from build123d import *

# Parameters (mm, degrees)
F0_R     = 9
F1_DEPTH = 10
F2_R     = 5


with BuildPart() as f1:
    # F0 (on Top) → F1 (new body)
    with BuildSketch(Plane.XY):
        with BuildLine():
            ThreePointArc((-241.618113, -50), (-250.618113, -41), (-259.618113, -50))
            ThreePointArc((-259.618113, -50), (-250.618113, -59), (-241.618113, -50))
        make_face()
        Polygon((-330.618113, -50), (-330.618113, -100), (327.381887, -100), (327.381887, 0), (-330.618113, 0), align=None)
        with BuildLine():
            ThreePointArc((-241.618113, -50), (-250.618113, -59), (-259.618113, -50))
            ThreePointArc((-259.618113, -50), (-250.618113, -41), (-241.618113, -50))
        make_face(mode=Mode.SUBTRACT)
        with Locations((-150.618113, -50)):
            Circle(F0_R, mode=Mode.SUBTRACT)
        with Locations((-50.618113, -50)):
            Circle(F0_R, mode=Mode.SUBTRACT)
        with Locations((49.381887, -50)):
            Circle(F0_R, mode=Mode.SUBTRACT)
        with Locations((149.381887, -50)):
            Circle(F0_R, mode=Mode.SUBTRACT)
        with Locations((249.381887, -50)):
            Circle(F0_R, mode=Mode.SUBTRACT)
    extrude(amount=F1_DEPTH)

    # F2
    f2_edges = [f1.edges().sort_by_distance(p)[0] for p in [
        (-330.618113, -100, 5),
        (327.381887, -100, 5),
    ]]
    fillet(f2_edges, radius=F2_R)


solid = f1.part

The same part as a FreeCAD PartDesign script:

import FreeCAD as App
import Part
import Sketcher
Q = App.Units.Quantity


def edges_at(feature, points):
    """Names of the edges that pass closest to the given points."""
    edges = feature.Shape.Edges
    near = lambda p: min(range(len(edges)), key=lambda i: edges[i].distToShape(Part.Vertex(*p))[0])
    return sorted({f"Edge{near(p) + 1}" for p in points})


def add_polygon(sketch, points):
    """Adds a closed chain of lines whose ends are joined by coincident constraints."""
    first, n = sketch.GeometryCount, len(points)
    for a, b in zip(points, points[1:] + points[:1]):
        sketch.addGeometry(Part.LineSegment(App.Vector(*a, 0), App.Vector(*b, 0)), False)
    for i in range(n):
        sketch.addConstraint(Sketcher.Constraint("Coincident", first + i, 2, first + (i + 1) % n, 1))

doc = App.newDocument("Part")
body = doc.addObject("PartDesign::Body", "Body")

sketch1 = body.newObject("Sketcher::SketchObject", "Sketch")
sketch1.AttachmentSupport = (doc.getObject("XY_Plane"), [""])
sketch1.MapMode = "FlatFace"
add_polygon(sketch1, [(-331, -100), (327, -100), (327, 0), (-331, 0)])
sketch1.addGeometry(Part.Circle(App.Vector(-251, -50, 0), App.Vector(0, 0, 1), 9), False)
sketch1.addGeometry(Part.Circle(App.Vector(-151, -50, 0), App.Vector(0, 0, 1), 9), False)
sketch1.addGeometry(Part.Circle(App.Vector(-51, -50, 0), App.Vector(0, 0, 1), 9), False)
sketch1.addGeometry(Part.Circle(App.Vector(49, -50, 0), App.Vector(0, 0, 1), 9), False)
sketch1.addGeometry(Part.Circle(App.Vector(149, -50, 0), App.Vector(0, 0, 1), 9), False)
sketch1.addGeometry(Part.Circle(App.Vector(249, -50, 0), App.Vector(0, 0, 1), 9), False)
sketch1.addConstraint(Sketcher.Constraint("Horizontal", 0))
sketch1.addConstraint(Sketcher.Constraint("Vertical", 1))
sketch1.addConstraint(Sketcher.Constraint("Horizontal", 2))
sketch1.addConstraint(Sketcher.Constraint("Vertical", 3))
sketch1.addConstraint(Sketcher.Constraint("Equal", 4, 5))
sketch1.addConstraint(Sketcher.Constraint("Equal", 5, 6))
sketch1.addConstraint(Sketcher.Constraint("Equal", 6, 7))
sketch1.addConstraint(Sketcher.Constraint("Equal", 7, 8))
sketch1.addConstraint(Sketcher.Constraint("Equal", 8, 9))
sketch1.addConstraint(Sketcher.Constraint("PointOnObject", 1, 2, -1))
sketch1.addConstraint(Sketcher.Constraint("Horizontal", 4, 3, 5, 3))
sketch1.addConstraint(Sketcher.Constraint("Horizontal", 5, 3, 6, 3))
sketch1.addConstraint(Sketcher.Constraint("Horizontal", 6, 3, 7, 3))
sketch1.addConstraint(Sketcher.Constraint("Horizontal", 7, 3, 8, 3))
sketch1.addConstraint(Sketcher.Constraint("Horizontal", 8, 3, 9, 3))
sketch1.addConstraint(Sketcher.Constraint("Diameter", 4, Q("18 mm")))
sketch1.addConstraint(Sketcher.Constraint("DistanceX", 0, 1, 0, 2, Q("658 mm")))
sketch1.addConstraint(Sketcher.Constraint("DistanceY", 1, 1, 1, 2, Q("100 mm")))
sketch1.addConstraint(Sketcher.Constraint("DistanceY", 4, 3, -1, 1, Q("50 mm")))
sketch1.addConstraint(Sketcher.Constraint("DistanceX", 4, 3, 5, 3, Q("100 mm")))
sketch1.addConstraint(Sketcher.Constraint("DistanceX", 5, 3, 6, 3, Q("100 mm")))
sketch1.addConstraint(Sketcher.Constraint("DistanceX", 6, 3, 7, 3, Q("100 mm")))
sketch1.addConstraint(Sketcher.Constraint("DistanceX", 7, 3, 8, 3, Q("100 mm")))
sketch1.addConstraint(Sketcher.Constraint("DistanceX", 8, 3, 9, 3, Q("100 mm")))
sketch1.addConstraint(Sketcher.Constraint("DistanceX", 9, 3, 0, 2, Q("78 mm")))
sketch1.addConstraint(Sketcher.Constraint("DistanceX", 4, 3, -1, 1, Q("250.618113 mm")))
pad1 = body.newObject("PartDesign::Pad", "Pad")
pad1.Profile = sketch1
pad1.Length = 10
doc.recompute()

fillet = body.newObject("PartDesign::Fillet", "Fillet")
fillet.Base = (pad1, edges_at(pad1, [(-330.618, -100, 5), (327.382, -100, 5)]))
fillet.Radius = 5

doc.recompute()
